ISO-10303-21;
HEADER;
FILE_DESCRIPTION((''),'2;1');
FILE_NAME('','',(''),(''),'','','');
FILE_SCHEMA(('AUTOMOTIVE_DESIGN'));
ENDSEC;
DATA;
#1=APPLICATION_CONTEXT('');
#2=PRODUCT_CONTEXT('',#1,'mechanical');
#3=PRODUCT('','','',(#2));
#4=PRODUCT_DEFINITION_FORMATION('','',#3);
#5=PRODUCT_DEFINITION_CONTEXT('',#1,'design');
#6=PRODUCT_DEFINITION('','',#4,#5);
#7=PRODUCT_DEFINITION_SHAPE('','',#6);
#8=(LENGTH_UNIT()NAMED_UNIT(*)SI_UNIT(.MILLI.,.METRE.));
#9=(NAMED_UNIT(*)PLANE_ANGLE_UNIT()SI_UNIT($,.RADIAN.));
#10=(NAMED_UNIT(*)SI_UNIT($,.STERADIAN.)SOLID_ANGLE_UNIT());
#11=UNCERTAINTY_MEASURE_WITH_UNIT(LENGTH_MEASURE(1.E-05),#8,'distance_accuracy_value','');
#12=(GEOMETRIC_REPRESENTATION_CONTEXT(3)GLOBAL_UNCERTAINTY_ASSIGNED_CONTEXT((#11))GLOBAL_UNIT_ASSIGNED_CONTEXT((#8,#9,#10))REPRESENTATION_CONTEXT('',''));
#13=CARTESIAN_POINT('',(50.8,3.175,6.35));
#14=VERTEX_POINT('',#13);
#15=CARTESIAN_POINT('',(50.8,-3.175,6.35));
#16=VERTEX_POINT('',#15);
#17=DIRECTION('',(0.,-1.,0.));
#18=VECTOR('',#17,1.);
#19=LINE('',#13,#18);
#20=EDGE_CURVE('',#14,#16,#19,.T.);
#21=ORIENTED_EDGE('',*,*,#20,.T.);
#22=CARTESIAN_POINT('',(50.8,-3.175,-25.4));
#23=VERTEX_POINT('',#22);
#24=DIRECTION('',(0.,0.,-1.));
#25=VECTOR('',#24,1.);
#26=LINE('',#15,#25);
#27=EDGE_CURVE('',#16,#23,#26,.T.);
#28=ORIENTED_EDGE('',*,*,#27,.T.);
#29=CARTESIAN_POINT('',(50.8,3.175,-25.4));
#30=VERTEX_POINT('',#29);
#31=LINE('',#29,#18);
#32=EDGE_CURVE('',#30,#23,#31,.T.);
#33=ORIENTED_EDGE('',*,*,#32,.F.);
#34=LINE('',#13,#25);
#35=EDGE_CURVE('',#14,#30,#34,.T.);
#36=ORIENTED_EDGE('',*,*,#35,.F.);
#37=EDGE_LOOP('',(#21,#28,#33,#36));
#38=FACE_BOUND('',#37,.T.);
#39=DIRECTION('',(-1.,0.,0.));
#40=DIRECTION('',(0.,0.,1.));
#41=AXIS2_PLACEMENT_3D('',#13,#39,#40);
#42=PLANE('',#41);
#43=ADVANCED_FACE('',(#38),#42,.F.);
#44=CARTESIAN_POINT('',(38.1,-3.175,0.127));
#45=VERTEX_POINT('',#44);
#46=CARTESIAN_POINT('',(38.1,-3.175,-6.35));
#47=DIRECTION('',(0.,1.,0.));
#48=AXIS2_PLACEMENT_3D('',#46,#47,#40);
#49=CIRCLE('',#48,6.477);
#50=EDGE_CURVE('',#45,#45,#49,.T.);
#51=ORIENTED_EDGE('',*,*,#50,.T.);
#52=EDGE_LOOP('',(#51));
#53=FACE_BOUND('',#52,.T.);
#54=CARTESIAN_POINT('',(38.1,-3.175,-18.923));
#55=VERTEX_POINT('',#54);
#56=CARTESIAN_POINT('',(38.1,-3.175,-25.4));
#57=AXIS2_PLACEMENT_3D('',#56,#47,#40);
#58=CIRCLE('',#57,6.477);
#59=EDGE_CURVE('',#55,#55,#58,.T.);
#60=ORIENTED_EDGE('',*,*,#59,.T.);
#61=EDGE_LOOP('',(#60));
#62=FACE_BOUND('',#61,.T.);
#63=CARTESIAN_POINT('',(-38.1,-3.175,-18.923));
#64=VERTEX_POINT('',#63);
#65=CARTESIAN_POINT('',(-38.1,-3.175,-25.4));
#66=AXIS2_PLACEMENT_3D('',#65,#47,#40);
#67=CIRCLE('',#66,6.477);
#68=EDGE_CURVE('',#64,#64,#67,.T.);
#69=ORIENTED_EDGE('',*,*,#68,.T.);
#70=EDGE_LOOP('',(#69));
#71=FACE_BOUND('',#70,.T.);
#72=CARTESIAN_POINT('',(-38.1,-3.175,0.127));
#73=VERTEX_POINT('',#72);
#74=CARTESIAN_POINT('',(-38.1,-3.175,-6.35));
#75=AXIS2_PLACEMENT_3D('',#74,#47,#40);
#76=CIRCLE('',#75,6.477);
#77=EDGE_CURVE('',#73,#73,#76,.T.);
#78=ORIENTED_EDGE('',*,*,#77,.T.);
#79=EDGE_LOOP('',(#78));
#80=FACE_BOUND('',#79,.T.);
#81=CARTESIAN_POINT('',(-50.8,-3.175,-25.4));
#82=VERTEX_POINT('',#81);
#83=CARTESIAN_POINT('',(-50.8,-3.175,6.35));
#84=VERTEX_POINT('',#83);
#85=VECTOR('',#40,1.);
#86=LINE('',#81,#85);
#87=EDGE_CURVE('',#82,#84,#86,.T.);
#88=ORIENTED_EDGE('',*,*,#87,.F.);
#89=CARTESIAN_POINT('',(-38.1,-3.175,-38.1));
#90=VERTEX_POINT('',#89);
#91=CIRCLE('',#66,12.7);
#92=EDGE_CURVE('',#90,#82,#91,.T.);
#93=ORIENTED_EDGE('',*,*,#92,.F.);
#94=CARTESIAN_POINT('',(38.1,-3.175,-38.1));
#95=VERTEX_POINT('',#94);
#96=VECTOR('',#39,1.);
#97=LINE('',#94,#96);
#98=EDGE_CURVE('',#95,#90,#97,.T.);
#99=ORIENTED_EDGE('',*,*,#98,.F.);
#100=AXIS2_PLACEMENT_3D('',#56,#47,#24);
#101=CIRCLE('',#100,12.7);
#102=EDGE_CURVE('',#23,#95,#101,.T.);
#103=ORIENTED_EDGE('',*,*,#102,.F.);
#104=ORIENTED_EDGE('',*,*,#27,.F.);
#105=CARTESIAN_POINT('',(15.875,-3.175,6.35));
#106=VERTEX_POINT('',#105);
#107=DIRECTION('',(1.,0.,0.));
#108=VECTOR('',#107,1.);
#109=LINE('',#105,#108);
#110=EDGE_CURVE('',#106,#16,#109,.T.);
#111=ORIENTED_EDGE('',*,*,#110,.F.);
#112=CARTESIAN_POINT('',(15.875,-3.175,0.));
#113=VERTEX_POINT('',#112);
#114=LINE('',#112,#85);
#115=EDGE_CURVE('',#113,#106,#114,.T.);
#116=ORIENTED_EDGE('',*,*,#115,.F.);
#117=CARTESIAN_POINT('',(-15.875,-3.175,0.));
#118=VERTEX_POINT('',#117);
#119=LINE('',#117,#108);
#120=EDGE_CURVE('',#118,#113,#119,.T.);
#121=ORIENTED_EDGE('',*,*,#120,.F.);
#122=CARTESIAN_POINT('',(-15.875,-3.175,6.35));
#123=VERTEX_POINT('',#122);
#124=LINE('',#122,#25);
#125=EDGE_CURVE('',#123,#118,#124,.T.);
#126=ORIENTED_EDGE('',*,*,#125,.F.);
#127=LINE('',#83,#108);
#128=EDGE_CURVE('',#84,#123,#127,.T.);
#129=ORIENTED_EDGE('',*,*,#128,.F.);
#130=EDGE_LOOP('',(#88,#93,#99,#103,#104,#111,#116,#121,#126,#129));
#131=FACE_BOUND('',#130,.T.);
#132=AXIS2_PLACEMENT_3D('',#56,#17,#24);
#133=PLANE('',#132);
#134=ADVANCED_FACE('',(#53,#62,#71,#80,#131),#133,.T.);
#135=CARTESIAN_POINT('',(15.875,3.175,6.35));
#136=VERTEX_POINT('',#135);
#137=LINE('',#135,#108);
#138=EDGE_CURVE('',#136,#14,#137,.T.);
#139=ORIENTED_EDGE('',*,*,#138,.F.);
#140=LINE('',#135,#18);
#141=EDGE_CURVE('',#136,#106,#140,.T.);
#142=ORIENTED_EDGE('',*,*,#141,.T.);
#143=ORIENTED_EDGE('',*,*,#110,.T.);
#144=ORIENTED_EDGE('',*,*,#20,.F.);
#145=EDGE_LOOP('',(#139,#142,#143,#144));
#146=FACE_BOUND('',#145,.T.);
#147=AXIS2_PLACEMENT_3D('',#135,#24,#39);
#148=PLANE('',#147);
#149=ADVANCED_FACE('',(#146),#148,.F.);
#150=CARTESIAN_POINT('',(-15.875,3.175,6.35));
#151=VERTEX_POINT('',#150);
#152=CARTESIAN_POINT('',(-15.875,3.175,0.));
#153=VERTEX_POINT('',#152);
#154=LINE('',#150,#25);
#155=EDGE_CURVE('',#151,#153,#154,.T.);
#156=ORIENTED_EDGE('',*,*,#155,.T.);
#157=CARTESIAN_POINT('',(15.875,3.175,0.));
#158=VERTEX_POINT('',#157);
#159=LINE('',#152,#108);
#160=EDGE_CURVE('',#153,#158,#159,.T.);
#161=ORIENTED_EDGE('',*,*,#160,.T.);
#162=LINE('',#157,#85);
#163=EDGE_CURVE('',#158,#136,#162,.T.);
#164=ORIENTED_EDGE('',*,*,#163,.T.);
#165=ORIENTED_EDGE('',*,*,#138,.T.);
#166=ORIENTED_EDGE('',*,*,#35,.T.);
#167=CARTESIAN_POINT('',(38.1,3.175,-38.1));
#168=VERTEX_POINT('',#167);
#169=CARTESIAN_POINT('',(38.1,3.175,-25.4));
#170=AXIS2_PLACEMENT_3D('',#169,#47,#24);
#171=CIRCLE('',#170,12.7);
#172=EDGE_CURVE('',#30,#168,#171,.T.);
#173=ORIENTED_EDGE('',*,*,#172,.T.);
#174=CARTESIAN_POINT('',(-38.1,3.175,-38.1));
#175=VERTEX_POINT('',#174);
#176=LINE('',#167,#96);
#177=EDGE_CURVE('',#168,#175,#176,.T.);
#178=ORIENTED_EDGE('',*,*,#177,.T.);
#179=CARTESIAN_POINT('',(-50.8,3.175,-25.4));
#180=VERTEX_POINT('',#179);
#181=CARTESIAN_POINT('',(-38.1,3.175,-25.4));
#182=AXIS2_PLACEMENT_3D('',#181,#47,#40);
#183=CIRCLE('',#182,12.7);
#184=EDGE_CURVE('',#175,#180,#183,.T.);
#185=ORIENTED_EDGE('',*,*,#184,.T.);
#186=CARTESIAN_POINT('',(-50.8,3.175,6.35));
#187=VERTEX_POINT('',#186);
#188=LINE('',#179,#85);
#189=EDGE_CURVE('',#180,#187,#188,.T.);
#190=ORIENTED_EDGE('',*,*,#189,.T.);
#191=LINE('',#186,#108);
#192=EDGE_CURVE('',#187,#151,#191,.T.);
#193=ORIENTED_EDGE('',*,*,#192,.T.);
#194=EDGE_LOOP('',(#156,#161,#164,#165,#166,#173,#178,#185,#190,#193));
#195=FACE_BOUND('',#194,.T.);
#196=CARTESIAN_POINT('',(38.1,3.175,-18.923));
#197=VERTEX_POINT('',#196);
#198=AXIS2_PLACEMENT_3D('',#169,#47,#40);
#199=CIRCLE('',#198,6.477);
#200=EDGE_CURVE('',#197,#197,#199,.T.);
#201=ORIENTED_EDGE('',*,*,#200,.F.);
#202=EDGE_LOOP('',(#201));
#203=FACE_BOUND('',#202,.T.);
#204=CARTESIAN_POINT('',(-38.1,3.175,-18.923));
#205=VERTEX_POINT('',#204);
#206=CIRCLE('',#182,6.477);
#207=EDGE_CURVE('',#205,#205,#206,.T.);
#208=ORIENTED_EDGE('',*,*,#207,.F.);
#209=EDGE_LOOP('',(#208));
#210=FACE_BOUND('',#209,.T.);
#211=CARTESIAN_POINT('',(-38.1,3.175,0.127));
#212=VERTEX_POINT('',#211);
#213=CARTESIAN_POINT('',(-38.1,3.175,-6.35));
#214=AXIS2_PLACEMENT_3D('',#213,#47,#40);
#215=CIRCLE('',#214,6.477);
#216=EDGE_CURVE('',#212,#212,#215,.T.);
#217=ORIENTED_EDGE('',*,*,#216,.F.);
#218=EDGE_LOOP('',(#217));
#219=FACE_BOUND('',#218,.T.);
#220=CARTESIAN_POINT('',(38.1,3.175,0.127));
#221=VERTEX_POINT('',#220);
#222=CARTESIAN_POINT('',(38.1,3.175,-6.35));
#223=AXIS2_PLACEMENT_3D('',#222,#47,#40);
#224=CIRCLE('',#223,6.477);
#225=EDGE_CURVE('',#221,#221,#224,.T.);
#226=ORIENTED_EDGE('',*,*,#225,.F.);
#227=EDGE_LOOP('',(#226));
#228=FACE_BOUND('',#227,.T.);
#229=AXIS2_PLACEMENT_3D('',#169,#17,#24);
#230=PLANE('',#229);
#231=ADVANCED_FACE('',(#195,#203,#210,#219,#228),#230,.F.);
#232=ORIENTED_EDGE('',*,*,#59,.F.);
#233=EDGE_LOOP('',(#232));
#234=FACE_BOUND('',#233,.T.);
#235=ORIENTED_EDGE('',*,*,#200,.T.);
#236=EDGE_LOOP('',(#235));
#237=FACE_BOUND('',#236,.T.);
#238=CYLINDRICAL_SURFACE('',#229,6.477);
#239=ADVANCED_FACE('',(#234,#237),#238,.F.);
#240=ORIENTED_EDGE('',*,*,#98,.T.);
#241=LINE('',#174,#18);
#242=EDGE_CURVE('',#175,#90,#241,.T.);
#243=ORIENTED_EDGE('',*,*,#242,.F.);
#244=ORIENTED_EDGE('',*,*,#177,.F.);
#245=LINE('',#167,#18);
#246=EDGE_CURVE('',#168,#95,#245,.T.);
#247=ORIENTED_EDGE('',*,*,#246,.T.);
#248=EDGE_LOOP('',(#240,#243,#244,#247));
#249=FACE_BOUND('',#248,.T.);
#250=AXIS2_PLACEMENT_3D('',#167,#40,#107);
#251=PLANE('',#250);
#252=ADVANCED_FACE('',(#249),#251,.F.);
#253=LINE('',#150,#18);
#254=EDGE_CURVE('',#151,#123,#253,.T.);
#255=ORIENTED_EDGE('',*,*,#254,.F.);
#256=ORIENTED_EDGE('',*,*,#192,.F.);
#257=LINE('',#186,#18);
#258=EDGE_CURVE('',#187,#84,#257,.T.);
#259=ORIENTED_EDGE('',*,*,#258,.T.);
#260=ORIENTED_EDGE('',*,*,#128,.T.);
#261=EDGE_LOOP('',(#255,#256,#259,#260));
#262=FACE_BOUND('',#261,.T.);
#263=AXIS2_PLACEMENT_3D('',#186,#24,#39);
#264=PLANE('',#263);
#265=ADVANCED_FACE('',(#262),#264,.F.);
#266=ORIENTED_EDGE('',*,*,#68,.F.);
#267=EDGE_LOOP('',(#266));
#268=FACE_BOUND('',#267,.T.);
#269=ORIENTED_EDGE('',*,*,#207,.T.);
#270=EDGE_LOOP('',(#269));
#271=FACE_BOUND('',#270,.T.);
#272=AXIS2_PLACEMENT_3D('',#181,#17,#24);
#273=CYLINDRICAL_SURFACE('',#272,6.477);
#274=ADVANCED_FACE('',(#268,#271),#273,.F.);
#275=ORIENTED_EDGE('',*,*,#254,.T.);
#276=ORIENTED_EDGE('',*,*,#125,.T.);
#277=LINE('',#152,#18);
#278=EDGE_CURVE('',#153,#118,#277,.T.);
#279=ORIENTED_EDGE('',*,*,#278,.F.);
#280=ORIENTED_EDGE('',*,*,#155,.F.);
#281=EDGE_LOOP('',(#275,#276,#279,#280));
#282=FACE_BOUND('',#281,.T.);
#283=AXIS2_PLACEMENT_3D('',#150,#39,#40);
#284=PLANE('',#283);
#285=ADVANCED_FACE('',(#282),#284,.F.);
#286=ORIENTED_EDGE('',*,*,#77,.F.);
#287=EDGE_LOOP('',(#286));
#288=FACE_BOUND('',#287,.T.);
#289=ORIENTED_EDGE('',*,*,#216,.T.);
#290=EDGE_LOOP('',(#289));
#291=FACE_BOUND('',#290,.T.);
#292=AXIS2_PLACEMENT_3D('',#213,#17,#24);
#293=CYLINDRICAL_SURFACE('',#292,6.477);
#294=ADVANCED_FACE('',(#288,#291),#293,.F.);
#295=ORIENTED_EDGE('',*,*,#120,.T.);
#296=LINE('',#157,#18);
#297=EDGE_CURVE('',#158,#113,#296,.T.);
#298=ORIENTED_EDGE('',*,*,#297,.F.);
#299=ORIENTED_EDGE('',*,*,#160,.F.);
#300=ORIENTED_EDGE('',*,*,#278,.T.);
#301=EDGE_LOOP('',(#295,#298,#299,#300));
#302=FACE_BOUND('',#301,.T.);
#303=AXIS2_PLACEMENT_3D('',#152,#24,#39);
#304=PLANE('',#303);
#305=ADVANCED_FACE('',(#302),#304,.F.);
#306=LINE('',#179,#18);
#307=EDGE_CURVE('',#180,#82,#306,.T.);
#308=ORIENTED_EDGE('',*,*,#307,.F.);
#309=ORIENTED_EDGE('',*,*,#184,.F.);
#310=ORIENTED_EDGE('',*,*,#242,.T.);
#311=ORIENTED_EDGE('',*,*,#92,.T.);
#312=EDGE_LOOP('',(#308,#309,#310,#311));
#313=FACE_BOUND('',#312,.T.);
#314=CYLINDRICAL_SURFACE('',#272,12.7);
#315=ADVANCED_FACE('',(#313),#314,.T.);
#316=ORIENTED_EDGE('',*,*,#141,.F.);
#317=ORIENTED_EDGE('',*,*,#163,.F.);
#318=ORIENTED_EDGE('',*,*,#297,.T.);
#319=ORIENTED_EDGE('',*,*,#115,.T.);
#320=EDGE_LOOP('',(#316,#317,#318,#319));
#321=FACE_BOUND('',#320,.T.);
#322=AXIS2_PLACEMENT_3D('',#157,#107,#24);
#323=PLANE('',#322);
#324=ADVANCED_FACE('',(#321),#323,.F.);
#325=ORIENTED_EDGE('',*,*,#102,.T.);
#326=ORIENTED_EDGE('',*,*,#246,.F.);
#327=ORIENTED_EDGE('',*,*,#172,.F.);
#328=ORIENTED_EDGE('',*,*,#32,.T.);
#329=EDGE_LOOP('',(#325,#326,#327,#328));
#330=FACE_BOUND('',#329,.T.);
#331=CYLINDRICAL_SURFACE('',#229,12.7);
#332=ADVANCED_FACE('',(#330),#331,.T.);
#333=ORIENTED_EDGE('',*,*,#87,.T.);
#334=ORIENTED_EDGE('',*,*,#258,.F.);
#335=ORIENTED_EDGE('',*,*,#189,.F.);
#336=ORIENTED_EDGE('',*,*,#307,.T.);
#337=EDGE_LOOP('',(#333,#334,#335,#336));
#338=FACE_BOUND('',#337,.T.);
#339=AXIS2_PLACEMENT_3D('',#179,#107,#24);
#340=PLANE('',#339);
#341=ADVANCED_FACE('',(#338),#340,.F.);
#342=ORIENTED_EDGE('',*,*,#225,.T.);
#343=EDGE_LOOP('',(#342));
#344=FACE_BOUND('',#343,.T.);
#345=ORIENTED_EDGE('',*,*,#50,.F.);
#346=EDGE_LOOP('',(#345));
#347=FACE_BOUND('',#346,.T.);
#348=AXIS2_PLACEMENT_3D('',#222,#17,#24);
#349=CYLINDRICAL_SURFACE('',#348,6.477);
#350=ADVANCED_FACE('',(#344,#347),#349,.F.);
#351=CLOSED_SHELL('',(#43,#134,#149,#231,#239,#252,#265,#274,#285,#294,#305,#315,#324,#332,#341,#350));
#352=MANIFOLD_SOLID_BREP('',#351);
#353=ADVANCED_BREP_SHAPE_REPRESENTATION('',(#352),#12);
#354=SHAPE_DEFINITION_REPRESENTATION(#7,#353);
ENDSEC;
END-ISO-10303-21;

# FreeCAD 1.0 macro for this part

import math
import FreeCAD as App
import Part
import Sketcher
Q = App.Units.Quantity

doc = App.newDocument("Part")
body = doc.addObject("PartDesign::Body", "Body")

# Sketch on XZ plane
sketch1 = body.newObject("Sketcher::SketchObject", "Sketch")
sketch1.AttachmentSupport = (doc.getObject("XZ_Plane"), [""])
sketch1.MapMode = "FlatFace"
sketch1.addGeometry([
    Part.LineSegment(App.Vector(38, -38, 0), App.Vector(-38, -38, 0)),  # 0
    Part.ArcOfCircle(Part.Circle(App.Vector(-38, -25, 0), App.Vector(0, 0, 1), 13), math.radians(180), math.radians(270)),  # 1
    Part.LineSegment(App.Vector(-51, -25, 0), App.Vector(-51, 6, 0)),  # 2
    Part.LineSegment(App.Vector(-51, 6, 0), App.Vector(-16, 6, 0)),  # 3
    Part.LineSegment(App.Vector(-16, 6, 0), App.Vector(-16, 0, 0)),  # 4
    Part.LineSegment(App.Vector(-16, 0, 0), App.Vector(16, 0, 0)),  # 5
    Part.LineSegment(App.Vector(16, 0, 0), App.Vector(16, 6, 0)),  # 6
    Part.LineSegment(App.Vector(16, 6, 0), App.Vector(51, 6, 0)),  # 7
    Part.LineSegment(App.Vector(51, 6, 0), App.Vector(51, -25, 0)),  # 8
    Part.ArcOfCircle(Part.Circle(App.Vector(38, -25, 0), App.Vector(0, 0, 1), 13), math.radians(-90), math.radians(0)),  # 9
    Part.Circle(App.Vector(-38, -6, 0), App.Vector(0, 0, 1), 6),  # 10
    Part.Circle(App.Vector(38, -6, 0), App.Vector(0, 0, 1), 6),  # 11
    Part.Circle(App.Vector(-38, -25, 0), App.Vector(0, 0, 1), 6),  # 12
    Part.Circle(App.Vector(38, -25, 0), App.Vector(0, 0, 1), 6),  # 13
], False)
sketch1.addConstraint([
    Sketcher.Constraint("Tangent", 0, 2, 1, 2),
    Sketcher.Constraint("Tangent", 1, 1, 2, 1),
    Sketcher.Constraint("Coincident", 2, 2, 3, 1),
    Sketcher.Constraint("Coincident", 3, 2, 4, 1),
    Sketcher.Constraint("Coincident", 4, 2, 5, 1),
    Sketcher.Constraint("Coincident", 5, 2, 6, 1),
    Sketcher.Constraint("Coincident", 6, 2, 7, 1),
    Sketcher.Constraint("Coincident", 7, 2, 8, 1),
    Sketcher.Constraint("Tangent", 8, 2, 9, 2),
    Sketcher.Constraint("Tangent", 9, 1, 0, 1),
    Sketcher.Constraint("Horizontal", 0),
    Sketcher.Constraint("Vertical", 2),
    Sketcher.Constraint("Horizontal", 3),
    Sketcher.Constraint("Vertical", 4),
    Sketcher.Constraint("Horizontal", 5),
    Sketcher.Constraint("Vertical", 6),
    Sketcher.Constraint("Horizontal", 7),
    Sketcher.Constraint("Vertical", 8),
    Sketcher.Constraint("Coincident", 12, 3, 1, 3),
    Sketcher.Constraint("Coincident", 13, 3, 9, 3),
    Sketcher.Constraint("Equal", 1, 9),
    Sketcher.Constraint("Equal", 10, 11),
    Sketcher.Constraint("Equal", 11, 12),
    Sketcher.Constraint("Equal", 12, 13),
    Sketcher.Constraint("Symmetric", 4, 2, 5, 2, -1, 1),
    Sketcher.Constraint("Symmetric", 10, 3, 11, 3, -2),
    Sketcher.Constraint("Symmetric", 2, 2, 7, 2, -2),
    Sketcher.Constraint("Vertical", 1, 3, 10, 3),
    Sketcher.Constraint("Equal", 5, 2),
    Sketcher.Constraint("Radius", 1, Q("0.5 in")),
    Sketcher.Constraint("Diameter", 10, Q("0.51 in")),
    Sketcher.Constraint("DistanceX", 0, 2, 0, 1, Q("3 in")),
    Sketcher.Constraint("DistanceY", 1, 3, -1, 1, Q("1 in")),
    Sketcher.Constraint("DistanceX", 5, 1, 5, 2, Q("1.25 in")),
    Sketcher.Constraint("DistanceY", 10, 3, 2, 2, Q("0.5 in")),
])
pad1 = body.newObject("PartDesign::Pad", "Pad")
pad1.Profile = sketch1
pad1.Length = Q("0.25 in")
pad1.Midplane = True

doc.recompute()
